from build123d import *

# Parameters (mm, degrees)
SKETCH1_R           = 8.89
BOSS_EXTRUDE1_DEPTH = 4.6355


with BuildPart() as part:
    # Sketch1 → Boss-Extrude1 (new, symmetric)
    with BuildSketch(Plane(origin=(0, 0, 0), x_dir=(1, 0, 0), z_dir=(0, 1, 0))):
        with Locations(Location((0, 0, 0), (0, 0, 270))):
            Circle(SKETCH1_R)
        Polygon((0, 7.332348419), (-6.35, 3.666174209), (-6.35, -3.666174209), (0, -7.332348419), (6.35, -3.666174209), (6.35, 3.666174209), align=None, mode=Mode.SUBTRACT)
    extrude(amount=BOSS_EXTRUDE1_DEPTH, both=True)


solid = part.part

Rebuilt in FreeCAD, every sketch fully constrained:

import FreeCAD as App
import Part
import Sketcher
from FreeCAD import Vector
Q = App.Units.Quantity

doc = App.newDocument("Part")
body = doc.addObject("PartDesign::Body", "Body")

sketch1 = body.newObject("Sketcher::SketchObject", "Sketch")
sketch1.AttachmentSupport = (doc.getObject("XZ_Plane"), [""])
sketch1.MapMode = "FlatFace"
sketch1.addGeometry(Part.Circle(Vector(0, 0, 0), Vector(0, 0, 1), 9), False)
sketch1.addGeometry(Part.LineSegment(Vector(-6, -4, 0), Vector(0, -7, 0)), False)
sketch1.addGeometry(Part.LineSegment(Vector(0, -7, 0), Vector(6, -4, 0)), False)
sketch1.addGeometry(Part.LineSegment(Vector(6, -4, 0), Vector(6, 4, 0)), False)
sketch1.addGeometry(Part.LineSegment(Vector(6, 4, 0), Vector(0, 7, 0)), False)
sketch1.addGeometry(Part.LineSegment(Vector(0, 7, 0), Vector(-6, 4, 0)), False)
sketch1.addGeometry(Part.LineSegment(Vector(-6, 4, 0), Vector(-6, -4, 0)), False)
sketch1.addConstraint(Sketcher.Constraint("Coincident", 1, 2, 2, 1))
sketch1.addConstraint(Sketcher.Constraint("Coincident", 2, 2, 3, 1))
sketch1.addConstraint(Sketcher.Constraint("Coincident", 3, 2, 4, 1))
sketch1.addConstraint(Sketcher.Constraint("Coincident", 4, 2, 5, 1))
sketch1.addConstraint(Sketcher.Constraint("Coincident", 5, 2, 6, 1))
sketch1.addConstraint(Sketcher.Constraint("Coincident", 6, 2, 1, 1))
sketch1.addConstraint(Sketcher.Constraint("Vertical", 3))
sketch1.addConstraint(Sketcher.Constraint("Vertical", 6))
sketch1.addConstraint(Sketcher.Constraint("Coincident", 0, 3, -1, 1))
sketch1.addConstraint(Sketcher.Constraint("Symmetric", 1, 2, 4, 2, -1, 1))
sketch1.addConstraint(Sketcher.Constraint("Symmetric", 2, 2, 5, 2, -1, 1))
sketch1.addConstraint(Sketcher.Constraint("PointOnObject", 1, 2, -2))
sketch1.addConstraint(Sketcher.Constraint("Parallel", 1, 4))
sketch1.addConstraint(Sketcher.Constraint("Horizontal", 3, 2, 5, 2))
sketch1.addConstraint(Sketcher.Constraint("Diameter", 0, Q("0.7 in")))
sketch1.addConstraint(Sketcher.Constraint("Angle", 1, Q("-30 deg")))
sketch1.addConstraint(Sketcher.Constraint("DistanceX", 5, 2, 3, 2, Q("0.5 in")))
sketch1.addConstraint(Sketcher.Constraint("DistanceY", 3, 1, 3, 2, Q("7.332348 mm")))
pad1 = body.newObject("PartDesign::Pad", "Pad")
pad1.Profile = sketch1
pad1.Length = Q("0.365 in")
pad1.Midplane = True

doc.recompute()
